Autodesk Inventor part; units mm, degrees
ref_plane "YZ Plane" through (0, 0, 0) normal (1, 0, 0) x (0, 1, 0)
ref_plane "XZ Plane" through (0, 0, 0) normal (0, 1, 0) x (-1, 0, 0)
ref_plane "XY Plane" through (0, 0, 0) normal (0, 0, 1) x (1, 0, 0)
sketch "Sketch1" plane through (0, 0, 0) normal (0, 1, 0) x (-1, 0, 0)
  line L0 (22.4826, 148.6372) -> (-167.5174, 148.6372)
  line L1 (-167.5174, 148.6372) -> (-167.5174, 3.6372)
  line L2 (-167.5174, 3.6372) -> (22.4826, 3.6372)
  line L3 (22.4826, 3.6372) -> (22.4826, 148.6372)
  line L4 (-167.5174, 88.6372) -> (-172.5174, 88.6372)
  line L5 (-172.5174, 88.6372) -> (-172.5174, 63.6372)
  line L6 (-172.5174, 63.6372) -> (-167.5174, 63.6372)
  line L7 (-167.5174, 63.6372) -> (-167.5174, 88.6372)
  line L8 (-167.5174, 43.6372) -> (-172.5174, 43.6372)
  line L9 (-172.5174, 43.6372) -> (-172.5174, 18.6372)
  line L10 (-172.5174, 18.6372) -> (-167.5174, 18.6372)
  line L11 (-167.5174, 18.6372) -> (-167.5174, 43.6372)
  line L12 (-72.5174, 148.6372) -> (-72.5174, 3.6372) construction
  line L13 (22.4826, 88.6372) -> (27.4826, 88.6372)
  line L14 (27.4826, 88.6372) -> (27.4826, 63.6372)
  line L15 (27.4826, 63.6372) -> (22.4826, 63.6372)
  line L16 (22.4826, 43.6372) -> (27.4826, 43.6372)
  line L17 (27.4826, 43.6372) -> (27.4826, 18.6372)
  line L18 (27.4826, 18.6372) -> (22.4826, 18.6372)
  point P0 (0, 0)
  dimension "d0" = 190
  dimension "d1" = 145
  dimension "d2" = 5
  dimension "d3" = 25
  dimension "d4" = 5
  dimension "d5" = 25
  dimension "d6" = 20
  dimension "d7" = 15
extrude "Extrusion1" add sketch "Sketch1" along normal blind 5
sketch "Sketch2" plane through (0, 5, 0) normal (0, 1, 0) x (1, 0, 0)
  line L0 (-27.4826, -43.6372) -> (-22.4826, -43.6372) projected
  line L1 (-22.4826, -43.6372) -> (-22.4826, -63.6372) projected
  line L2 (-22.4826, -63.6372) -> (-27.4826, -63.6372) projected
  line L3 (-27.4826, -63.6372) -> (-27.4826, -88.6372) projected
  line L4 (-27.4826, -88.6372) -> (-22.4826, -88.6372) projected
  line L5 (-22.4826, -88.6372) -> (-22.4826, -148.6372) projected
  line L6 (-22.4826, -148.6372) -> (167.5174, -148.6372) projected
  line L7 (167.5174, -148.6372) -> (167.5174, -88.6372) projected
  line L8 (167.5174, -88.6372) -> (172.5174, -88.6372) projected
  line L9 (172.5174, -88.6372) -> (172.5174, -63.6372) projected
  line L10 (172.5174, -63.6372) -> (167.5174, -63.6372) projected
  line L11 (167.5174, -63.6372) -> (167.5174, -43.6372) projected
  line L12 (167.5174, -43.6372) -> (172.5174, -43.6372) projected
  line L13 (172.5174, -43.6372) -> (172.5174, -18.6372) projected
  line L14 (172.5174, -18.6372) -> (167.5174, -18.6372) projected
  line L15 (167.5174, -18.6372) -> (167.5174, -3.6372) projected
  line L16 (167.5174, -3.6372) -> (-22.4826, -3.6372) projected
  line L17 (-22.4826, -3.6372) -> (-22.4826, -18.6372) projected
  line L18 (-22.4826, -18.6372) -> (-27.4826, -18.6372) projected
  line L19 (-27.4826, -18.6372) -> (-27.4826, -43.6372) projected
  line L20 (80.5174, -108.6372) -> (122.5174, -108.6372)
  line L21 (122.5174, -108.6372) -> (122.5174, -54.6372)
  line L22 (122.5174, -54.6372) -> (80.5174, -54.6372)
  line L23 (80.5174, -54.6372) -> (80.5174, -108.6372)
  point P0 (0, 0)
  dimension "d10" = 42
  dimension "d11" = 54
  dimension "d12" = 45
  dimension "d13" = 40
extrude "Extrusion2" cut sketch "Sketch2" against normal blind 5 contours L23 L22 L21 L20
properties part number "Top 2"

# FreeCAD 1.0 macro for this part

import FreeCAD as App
import Part
import Sketcher

V = App.Vector
Q = App.Units.Quantity

doc = App.newDocument("Part")
body = doc.addObject("PartDesign::Body", "Body")

# Sketch on XZ plane
sketch1 = body.newObject("Sketcher::SketchObject", "Sketch")
sketch1.AttachmentSupport = (doc.getObject("XZ_Plane"), [""])
sketch1.MapMode = "FlatFace"
sketch1.addGeometry([
    Part.LineSegment(V(-22.4826, 88.6372, 0), V(-22.4826, 148.6372, 0)),  # 0
    Part.LineSegment(V(-22.4826, 148.6372, 0), V(167.5174, 148.6372, 0)),  # 1
    Part.LineSegment(V(167.5174, 148.6372, 0), V(167.5174, 88.6372, 0)),  # 2
    Part.LineSegment(V(167.5174, 88.6372, 0), V(172.5174, 88.6372, 0)),  # 3
    Part.LineSegment(V(172.5174, 88.6372, 0), V(172.5174, 63.6372, 0)),  # 4
    Part.LineSegment(V(172.5174, 63.6372, 0), V(167.5174, 63.6372, 0)),  # 5
    Part.LineSegment(V(167.5174, 63.6372, 0), V(167.5174, 43.6372, 0)),  # 6
    Part.LineSegment(V(167.5174, 43.6372, 0), V(172.5174, 43.6372, 0)),  # 7
    Part.LineSegment(V(172.5174, 43.6372, 0), V(172.5174, 18.6372, 0)),  # 8
    Part.LineSegment(V(172.5174, 18.6372, 0), V(167.5174, 18.6372, 0)),  # 9
    Part.LineSegment(V(167.5174, 18.6372, 0), V(167.5174, 3.6372, 0)),  # 10
    Part.LineSegment(V(167.5174, 3.6372, 0), V(-22.4826, 3.6372, 0)),  # 11
    Part.LineSegment(V(-22.4826, 3.6372, 0), V(-22.4826, 18.6372, 0)),  # 12
    Part.LineSegment(V(-22.4826, 18.6372, 0), V(-27.4826, 18.6372, 0)),  # 13
    Part.LineSegment(V(-27.4826, 18.6372, 0), V(-27.4826, 43.6372, 0)),  # 14
    Part.LineSegment(V(-27.4826, 43.6372, 0), V(-22.4826, 43.6372, 0)),  # 15
    Part.LineSegment(V(-22.4826, 43.6372, 0), V(-22.4826, 63.6372, 0)),  # 16
    Part.LineSegment(V(-22.4826, 63.6372, 0), V(-27.4826, 63.6372, 0)),  # 17
    Part.LineSegment(V(-27.4826, 63.6372, 0), V(-27.4826, 88.6372, 0)),  # 18
    Part.LineSegment(V(-27.4826, 88.6372, 0), V(-22.4826, 88.6372, 0)),  # 19
], False)
sketch1.addConstraint([
    Sketcher.Constraint("Coincident", 0, 2, 1, 1),
    Sketcher.Constraint("Coincident", 1, 2, 2, 1),
    Sketcher.Constraint("Coincident", 2, 2, 3, 1),
    Sketcher.Constraint("Coincident", 3, 2, 4, 1),
    Sketcher.Constraint("Coincident", 4, 2, 5, 1),
    Sketcher.Constraint("Coincident", 5, 2, 6, 1),
    Sketcher.Constraint("Coincident", 6, 2, 7, 1),
    Sketcher.Constraint("Coincident", 7, 2, 8, 1),
    Sketcher.Constraint("Coincident", 8, 2, 9, 1),
    Sketcher.Constraint("Coincident", 9, 2, 10, 1),
    Sketcher.Constraint("Coincident", 10, 2, 11, 1),
    Sketcher.Constraint("Coincident", 11, 2, 12, 1),
    Sketcher.Constraint("Coincident", 12, 2, 13, 1),
    Sketcher.Constraint("Coincident", 13, 2, 14, 1),
    Sketcher.Constraint("Coincident", 14, 2, 15, 1),
    Sketcher.Constraint("Coincident", 15, 2, 16, 1),
    Sketcher.Constraint("Coincident", 16, 2, 17, 1),
    Sketcher.Constraint("Coincident", 17, 2, 18, 1),
    Sketcher.Constraint("Coincident", 18, 2, 19, 1),
    Sketcher.Constraint("Coincident", 19, 2, 0, 1),
    Sketcher.Constraint("Vertical", 0),
    Sketcher.Constraint("Horizontal", 1),
    Sketcher.Constraint("Vertical", 2),
    Sketcher.Constraint("Horizontal", 3),
    Sketcher.Constraint("Vertical", 4),
    Sketcher.Constraint("Horizontal", 5),
    Sketcher.Constraint("Vertical", 6),
    Sketcher.Constraint("Horizontal", 7),
    Sketcher.Constraint("Vertical", 8),
    Sketcher.Constraint("Horizontal", 9),
    Sketcher.Constraint("Vertical", 10),
    Sketcher.Constraint("Horizontal", 11),
    Sketcher.Constraint("Vertical", 12),
    Sketcher.Constraint("Horizontal", 13),
    Sketcher.Constraint("Vertical", 14),
    Sketcher.Constraint("Horizontal", 15),
    Sketcher.Constraint("Vertical", 16),
    Sketcher.Constraint("Horizontal", 17),
    Sketcher.Constraint("Vertical", 18),
    Sketcher.Constraint("Horizontal", 19),
    Sketcher.Constraint("Horizontal", 9, 2, 12, 2),
    Sketcher.Constraint("Horizontal", 7, 2, 14, 2),
    Sketcher.Constraint("Horizontal", 5, 2, 16, 2),
    Sketcher.Constraint("Horizontal", 3, 2, 18, 2),
    Sketcher.Constraint("Vertical", 2, 2, 5, 2),
    Sketcher.Constraint("Vertical", 4, 2, 7, 2),
    Sketcher.Constraint("Vertical", 6, 2, 9, 2),
    Sketcher.Constraint("Vertical", 0, 2, 11, 2),
    Sketcher.Constraint("Vertical", 12, 2, 15, 2),
    Sketcher.Constraint("Vertical", 14, 2, 17, 2),
    Sketcher.Constraint("Equal", 9, 13),
    Sketcher.Constraint("Equal", 4, 8),
    Sketcher.Constraint("DistanceX", 1, 1, 1, 2, Q("190 mm")),
    Sketcher.Constraint("DistanceX", 3, 1, 3, 2, Q("5 mm")),
    Sketcher.Constraint("DistanceY", 4, 2, 4, 1, Q("25 mm")),
    Sketcher.Constraint("DistanceY", 6, 2, 6, 1, Q("20 mm")),
    Sketcher.Constraint("DistanceY", 10, 2, 10, 1, Q("15 mm")),
    Sketcher.Constraint("DistanceY", 11, 2, 0, 2, Q("145 mm")),
    Sketcher.Constraint("DistanceX", 0, 2, -1, 1, Q("22.4826 mm")),
    Sketcher.Constraint("DistanceY", -1, 1, 0, 2, Q("148.6372 mm")),
])
pad1 = body.newObject("PartDesign::Pad", "Pad")
pad1.Profile = sketch1
pad1.Length = 5
pad1.Reversed = True

# Sketch on XZ plane
sketch2 = body.newObject("Sketcher::SketchObject", "Sketch001")
sketch2.AttachmentSupport = (doc.getObject("XZ_Plane"), [""])
sketch2.MapMode = "FlatFace"
sketch2.AttachmentOffset = App.Placement(V(0, 0, -5), App.Rotation())
sketch2.addGeometry([
    Part.LineSegment(V(80.5174, 54.6372, 0), V(80.5174, 108.6372, 0)),
    Part.LineSegment(V(80.5174, 108.6372, 0), V(122.5174, 108.6372, 0)),
    Part.LineSegment(V(122.5174, 108.6372, 0), V(122.5174, 54.6372, 0)),
    Part.LineSegment(V(122.5174, 54.6372, 0), V(80.5174, 54.6372, 0)),
], False)
sketch2.addConstraint([
    Sketcher.Constraint("Coincident", 0, 2, 1, 1),
    Sketcher.Constraint("Coincident", 1, 2, 2, 1),
    Sketcher.Constraint("Coincident", 2, 2, 3, 1),
    Sketcher.Constraint("Coincident", 3, 2, 0, 1),
    Sketcher.Constraint("Vertical", 0),
    Sketcher.Constraint("Horizontal", 1),
    Sketcher.Constraint("Vertical", 2),
    Sketcher.Constraint("Horizontal", 3),
    Sketcher.Constraint("DistanceX", 1, 1, 1, 2, Q("42 mm")),
    Sketcher.Constraint("DistanceY", 0, 1, 0, 2, Q("54 mm")),
    Sketcher.Constraint("DistanceX", -1, 1, 0, 2, Q("80.5174 mm")),
    Sketcher.Constraint("DistanceY", -1, 1, 0, 2, Q("108.6372 mm")),
])
pocket1 = body.newObject("PartDesign::Pocket", "Pocket")
pocket1.Profile = sketch2
pocket1.Length = 5
pocket1.Reversed = True

doc.recompute()
